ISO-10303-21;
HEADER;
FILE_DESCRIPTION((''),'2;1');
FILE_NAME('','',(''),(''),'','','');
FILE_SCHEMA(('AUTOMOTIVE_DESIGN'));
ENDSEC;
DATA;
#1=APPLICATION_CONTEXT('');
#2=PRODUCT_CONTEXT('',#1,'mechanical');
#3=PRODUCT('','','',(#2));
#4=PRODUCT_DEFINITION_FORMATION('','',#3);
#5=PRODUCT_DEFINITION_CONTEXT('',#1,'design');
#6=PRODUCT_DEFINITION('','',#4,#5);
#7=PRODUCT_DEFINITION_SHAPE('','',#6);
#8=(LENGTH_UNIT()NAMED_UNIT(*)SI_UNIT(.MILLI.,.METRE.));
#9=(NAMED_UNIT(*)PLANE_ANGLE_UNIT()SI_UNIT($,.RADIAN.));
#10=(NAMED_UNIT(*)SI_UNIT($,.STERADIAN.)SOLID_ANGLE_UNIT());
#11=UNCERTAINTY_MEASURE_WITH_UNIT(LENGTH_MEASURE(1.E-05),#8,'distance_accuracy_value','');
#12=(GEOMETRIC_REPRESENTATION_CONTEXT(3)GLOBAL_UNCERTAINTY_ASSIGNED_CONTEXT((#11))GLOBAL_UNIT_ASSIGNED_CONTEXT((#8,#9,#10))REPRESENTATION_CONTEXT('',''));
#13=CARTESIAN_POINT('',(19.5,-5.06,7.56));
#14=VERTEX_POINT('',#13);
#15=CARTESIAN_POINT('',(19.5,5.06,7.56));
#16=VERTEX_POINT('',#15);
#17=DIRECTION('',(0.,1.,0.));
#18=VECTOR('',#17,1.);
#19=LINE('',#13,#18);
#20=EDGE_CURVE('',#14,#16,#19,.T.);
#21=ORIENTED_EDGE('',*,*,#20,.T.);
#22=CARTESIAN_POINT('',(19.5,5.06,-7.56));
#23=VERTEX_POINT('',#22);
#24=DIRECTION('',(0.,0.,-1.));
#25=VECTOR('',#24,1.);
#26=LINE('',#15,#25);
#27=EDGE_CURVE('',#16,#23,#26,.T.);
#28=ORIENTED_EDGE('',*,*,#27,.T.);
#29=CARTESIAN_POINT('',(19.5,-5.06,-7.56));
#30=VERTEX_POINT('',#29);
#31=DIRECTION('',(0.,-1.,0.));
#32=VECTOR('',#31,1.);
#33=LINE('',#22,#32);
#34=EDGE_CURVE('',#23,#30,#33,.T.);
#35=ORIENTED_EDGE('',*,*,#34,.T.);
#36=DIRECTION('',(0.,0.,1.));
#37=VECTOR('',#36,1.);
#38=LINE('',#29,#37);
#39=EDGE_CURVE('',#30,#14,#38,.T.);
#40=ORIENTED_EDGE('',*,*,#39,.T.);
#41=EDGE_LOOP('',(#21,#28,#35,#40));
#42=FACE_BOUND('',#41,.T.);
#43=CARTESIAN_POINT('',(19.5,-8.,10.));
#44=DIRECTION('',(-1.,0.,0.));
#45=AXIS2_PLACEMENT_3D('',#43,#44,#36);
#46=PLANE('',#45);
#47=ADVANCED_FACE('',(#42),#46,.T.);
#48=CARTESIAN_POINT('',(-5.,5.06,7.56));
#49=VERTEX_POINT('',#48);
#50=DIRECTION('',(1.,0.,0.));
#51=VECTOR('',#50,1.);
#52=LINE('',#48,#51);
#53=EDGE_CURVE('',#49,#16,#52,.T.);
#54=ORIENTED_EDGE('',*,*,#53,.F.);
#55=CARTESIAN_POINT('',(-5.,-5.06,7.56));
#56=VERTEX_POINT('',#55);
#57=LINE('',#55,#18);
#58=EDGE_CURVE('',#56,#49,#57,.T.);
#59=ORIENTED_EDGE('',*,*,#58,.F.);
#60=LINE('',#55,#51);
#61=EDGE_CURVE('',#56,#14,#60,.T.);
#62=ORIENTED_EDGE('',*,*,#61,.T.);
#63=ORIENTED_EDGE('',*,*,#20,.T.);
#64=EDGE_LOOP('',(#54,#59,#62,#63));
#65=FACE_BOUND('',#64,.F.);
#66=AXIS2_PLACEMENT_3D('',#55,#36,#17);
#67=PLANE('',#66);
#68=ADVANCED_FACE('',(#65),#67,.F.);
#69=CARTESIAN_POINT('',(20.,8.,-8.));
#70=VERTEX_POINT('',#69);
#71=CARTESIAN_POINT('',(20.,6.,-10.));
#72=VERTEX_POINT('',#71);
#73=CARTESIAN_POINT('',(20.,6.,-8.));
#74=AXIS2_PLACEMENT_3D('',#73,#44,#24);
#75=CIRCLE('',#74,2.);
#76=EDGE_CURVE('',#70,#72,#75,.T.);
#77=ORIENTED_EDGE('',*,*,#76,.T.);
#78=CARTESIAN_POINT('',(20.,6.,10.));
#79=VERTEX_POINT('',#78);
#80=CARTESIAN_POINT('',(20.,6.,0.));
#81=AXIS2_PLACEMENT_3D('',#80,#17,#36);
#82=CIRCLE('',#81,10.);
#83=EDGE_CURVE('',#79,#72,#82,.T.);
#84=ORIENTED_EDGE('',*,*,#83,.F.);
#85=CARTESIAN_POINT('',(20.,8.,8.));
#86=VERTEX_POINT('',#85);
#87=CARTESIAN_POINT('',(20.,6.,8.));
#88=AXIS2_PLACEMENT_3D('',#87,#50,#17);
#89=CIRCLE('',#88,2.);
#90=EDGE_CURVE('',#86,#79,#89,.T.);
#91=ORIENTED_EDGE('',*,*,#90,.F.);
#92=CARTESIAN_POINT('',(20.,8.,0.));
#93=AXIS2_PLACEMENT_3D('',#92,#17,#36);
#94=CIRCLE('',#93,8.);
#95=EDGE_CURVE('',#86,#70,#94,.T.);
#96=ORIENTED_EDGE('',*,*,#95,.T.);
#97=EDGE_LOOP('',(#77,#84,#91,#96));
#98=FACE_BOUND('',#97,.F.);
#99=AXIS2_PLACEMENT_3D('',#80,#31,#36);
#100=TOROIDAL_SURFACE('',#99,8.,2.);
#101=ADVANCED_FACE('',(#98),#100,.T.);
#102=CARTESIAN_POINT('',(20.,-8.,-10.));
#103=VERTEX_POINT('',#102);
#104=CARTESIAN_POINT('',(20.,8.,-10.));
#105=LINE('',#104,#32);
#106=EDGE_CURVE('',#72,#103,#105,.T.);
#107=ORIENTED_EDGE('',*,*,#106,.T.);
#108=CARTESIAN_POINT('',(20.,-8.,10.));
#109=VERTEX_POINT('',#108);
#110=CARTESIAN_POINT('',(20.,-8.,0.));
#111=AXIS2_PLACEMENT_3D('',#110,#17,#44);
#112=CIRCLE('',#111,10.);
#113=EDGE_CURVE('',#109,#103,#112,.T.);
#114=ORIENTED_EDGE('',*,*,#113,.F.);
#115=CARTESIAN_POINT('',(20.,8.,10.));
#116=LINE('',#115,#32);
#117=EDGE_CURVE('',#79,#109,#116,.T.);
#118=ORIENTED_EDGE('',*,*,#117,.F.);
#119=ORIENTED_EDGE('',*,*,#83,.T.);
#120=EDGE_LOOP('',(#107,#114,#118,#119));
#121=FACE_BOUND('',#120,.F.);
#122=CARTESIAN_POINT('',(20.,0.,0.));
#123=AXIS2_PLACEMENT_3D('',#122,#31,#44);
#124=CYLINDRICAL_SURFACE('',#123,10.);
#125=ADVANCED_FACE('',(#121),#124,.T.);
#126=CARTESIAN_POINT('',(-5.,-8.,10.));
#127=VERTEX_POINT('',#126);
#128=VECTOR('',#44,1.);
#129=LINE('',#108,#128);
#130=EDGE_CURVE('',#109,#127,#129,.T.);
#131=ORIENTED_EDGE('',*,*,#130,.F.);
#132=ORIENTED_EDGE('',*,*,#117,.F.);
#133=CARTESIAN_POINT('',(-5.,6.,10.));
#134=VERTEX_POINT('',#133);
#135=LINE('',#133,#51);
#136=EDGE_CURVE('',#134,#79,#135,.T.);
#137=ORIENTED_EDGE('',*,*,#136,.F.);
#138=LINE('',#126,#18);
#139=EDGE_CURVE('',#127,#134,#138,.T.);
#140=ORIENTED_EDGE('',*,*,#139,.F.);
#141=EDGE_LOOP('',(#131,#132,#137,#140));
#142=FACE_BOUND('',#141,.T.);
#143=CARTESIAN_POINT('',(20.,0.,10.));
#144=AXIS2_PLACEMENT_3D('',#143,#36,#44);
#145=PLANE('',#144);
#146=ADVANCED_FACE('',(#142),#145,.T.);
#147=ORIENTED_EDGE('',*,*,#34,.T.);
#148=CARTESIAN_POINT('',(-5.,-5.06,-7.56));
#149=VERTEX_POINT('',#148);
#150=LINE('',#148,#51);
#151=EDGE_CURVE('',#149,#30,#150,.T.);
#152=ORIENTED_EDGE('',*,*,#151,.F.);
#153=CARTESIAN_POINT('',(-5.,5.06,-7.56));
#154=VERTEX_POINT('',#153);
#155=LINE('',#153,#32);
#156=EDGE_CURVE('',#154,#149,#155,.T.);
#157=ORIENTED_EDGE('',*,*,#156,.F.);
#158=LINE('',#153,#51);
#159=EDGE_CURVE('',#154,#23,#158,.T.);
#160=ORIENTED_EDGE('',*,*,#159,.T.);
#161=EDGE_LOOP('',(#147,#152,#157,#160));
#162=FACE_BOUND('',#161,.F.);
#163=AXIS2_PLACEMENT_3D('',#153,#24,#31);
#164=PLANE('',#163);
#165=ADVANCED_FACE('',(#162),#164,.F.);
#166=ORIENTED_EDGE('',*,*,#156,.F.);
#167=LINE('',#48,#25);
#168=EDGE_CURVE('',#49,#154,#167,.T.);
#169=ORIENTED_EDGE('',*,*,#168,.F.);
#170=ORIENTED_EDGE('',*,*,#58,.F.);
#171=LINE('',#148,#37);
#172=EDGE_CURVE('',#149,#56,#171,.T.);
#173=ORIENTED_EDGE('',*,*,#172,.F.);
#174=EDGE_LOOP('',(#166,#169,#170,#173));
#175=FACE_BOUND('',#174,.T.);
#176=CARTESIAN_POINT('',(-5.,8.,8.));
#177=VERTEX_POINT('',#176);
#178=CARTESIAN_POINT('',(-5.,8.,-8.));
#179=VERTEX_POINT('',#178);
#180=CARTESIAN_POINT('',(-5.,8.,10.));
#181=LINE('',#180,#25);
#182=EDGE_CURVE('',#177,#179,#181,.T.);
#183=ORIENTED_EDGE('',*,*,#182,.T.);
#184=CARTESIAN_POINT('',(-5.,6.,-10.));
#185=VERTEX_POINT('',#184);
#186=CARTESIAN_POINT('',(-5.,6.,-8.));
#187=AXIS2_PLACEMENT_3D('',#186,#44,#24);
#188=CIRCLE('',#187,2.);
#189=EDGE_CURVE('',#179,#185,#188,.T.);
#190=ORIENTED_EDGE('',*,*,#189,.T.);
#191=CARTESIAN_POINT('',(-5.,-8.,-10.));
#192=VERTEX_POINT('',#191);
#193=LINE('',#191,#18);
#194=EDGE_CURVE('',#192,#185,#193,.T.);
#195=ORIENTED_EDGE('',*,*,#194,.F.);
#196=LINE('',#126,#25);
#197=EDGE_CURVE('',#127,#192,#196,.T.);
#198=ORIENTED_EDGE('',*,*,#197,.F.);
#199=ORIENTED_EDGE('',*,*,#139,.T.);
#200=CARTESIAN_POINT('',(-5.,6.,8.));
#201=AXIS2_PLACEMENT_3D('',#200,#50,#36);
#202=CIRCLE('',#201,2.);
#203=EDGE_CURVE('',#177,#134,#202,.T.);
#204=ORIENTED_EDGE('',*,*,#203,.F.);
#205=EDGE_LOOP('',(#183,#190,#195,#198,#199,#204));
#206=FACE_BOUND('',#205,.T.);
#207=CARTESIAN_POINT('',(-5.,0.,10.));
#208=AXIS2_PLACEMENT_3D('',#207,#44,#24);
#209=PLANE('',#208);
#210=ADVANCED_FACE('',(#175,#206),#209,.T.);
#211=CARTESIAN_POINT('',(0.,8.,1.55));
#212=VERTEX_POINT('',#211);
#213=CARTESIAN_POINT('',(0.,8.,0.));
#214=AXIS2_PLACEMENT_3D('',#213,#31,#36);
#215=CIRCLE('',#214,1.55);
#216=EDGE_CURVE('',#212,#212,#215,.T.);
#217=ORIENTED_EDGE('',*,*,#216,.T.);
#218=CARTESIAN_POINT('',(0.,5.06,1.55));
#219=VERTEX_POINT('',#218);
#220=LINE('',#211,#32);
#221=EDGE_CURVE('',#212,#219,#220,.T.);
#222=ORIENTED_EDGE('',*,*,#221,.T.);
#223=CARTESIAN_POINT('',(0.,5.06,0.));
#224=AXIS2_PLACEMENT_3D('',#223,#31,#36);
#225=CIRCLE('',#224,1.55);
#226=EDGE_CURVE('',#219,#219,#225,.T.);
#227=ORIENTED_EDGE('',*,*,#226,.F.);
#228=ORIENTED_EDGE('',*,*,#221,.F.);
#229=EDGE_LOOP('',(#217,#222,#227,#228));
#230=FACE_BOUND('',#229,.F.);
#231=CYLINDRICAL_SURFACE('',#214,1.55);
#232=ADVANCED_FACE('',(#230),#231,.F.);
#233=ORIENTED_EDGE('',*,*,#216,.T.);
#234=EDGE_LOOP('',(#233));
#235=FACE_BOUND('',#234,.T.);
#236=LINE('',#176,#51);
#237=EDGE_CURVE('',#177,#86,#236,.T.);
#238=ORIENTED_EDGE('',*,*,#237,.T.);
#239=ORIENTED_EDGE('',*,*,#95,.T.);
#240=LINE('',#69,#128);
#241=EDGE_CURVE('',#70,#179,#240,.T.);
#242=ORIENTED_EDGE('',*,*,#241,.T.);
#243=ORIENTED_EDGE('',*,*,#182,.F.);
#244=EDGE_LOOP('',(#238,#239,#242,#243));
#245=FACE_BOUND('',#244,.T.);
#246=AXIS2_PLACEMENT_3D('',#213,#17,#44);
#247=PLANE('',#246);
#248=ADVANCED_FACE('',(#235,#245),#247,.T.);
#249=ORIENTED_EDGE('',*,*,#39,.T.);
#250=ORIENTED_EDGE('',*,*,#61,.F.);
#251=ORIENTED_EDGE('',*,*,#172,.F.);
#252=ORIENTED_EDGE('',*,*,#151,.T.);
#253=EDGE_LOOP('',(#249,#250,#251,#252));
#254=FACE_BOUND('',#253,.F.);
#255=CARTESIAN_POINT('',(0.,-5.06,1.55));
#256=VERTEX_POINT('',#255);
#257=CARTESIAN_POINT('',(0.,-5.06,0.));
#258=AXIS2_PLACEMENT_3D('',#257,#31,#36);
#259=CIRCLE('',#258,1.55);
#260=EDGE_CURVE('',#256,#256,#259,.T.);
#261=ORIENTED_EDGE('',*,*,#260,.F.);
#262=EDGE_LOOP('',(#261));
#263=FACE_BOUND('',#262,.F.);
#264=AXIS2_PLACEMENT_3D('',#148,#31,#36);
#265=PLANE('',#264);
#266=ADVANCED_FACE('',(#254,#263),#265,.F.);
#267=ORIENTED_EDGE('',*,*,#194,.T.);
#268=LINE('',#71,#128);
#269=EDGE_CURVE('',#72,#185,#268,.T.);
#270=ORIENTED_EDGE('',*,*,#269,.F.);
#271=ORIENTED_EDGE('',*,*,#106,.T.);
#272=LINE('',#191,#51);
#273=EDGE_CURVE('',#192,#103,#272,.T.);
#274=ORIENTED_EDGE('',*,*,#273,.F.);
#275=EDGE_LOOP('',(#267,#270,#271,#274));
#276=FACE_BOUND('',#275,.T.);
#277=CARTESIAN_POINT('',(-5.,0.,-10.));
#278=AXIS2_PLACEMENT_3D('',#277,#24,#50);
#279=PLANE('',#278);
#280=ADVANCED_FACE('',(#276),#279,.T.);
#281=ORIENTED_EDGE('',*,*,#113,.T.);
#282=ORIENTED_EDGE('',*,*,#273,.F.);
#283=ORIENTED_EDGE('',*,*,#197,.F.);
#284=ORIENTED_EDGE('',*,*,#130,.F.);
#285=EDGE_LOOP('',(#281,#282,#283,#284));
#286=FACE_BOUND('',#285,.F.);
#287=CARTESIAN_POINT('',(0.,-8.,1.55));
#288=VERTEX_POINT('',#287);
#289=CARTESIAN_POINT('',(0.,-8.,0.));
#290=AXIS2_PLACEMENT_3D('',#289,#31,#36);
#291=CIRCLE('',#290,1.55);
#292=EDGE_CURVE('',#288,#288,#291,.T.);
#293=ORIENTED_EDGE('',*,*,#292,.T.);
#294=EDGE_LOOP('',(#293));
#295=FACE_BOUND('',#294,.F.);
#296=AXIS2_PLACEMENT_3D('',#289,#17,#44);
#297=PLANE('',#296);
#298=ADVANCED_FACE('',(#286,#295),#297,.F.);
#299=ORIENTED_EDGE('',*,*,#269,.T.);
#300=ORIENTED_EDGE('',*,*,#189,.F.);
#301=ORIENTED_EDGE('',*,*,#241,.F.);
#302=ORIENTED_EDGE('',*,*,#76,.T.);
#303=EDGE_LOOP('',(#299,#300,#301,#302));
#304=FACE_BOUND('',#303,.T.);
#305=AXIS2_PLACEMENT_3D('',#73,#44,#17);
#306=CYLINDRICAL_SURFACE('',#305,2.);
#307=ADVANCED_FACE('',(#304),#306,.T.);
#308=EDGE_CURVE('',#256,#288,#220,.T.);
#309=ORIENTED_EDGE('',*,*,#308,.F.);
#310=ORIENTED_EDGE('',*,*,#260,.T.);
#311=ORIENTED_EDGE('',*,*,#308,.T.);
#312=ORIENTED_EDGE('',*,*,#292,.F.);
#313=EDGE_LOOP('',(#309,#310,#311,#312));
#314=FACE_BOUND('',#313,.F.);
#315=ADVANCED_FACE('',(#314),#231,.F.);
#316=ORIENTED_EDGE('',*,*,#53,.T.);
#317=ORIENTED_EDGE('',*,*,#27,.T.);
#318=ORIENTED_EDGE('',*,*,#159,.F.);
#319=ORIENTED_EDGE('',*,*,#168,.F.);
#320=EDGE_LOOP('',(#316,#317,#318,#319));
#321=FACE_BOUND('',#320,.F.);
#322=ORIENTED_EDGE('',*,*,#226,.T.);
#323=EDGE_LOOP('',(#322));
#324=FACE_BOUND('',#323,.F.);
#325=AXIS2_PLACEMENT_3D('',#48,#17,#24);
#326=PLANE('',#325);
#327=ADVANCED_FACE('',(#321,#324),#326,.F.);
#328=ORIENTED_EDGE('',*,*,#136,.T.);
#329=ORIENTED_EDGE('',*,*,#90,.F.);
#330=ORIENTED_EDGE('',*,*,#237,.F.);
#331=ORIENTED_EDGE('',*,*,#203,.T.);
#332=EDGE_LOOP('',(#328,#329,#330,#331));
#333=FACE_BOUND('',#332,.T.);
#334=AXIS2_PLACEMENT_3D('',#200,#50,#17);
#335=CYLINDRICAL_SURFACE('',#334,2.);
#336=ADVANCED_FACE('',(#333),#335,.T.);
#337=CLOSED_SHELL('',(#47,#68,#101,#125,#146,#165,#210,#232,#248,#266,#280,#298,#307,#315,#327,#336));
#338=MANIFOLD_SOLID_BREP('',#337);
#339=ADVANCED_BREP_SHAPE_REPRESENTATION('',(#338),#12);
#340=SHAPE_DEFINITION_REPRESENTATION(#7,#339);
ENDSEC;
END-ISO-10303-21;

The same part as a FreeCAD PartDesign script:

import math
import FreeCAD as App
import Part
import Sketcher
from FreeCAD import Vector


def edges_at(feature, points):
    """Names of the edges that pass closest to the given points."""
    edges = feature.Shape.Edges
    near = lambda p: min(range(len(edges)), key=lambda i: edges[i].distToShape(Part.Vertex(*p))[0])
    return sorted({f"Edge{near(p) + 1}" for p in points})

doc = App.newDocument("Part")
body = doc.addObject("PartDesign::Body", "Body")

# Sketch on XZ plane
sketch1 = body.newObject("Sketcher::SketchObject", "Sketch")
sketch1.AttachmentSupport = (doc.getObject("XZ_Plane"), [""])
sketch1.MapMode = "FlatFace"
sketch1.addGeometry([
    Part.LineSegment(Vector(20, -10, 0), Vector(-5, -10, 0)),
    Part.LineSegment(Vector(-5, -10, 0), Vector(-5, 10, 0)),
    Part.LineSegment(Vector(-5, 10, 0), Vector(20, 10, 0)),
    Part.ArcOfCircle(Part.Circle(Vector(20, 0, 0), Vector(0, 0, 1), 10), math.radians(-90), math.radians(90)),
], False)
sketch1.addConstraint([
    Sketcher.Constraint("Coincident", 0, 2, 1, 1),
    Sketcher.Constraint("Coincident", 1, 2, 2, 1),
    Sketcher.Constraint("Tangent", 2, 2, 3, 2),
    Sketcher.Constraint("Tangent", 3, 1, 0, 1),
    Sketcher.Constraint("Horizontal", 0),
    Sketcher.Constraint("Vertical", 1),
    Sketcher.Constraint("Horizontal", 2),
    Sketcher.Constraint("PointOnObject", 3, 3, -1),
    Sketcher.Constraint("Radius", 3, 10.0),
    Sketcher.Constraint("DistanceX", -1, 1, 3, 3, 20.0),
    Sketcher.Constraint("DistanceX", 0, 2, -1, 1, 5.0),
])
pad1 = body.newObject("PartDesign::Pad", "Pad")
pad1.Profile = sketch1
pad1.Length = 16
pad1.Midplane = True

# Sketch on XZ plane
sketch2 = body.newObject("Sketcher::SketchObject", "Sketch001")
sketch2.AttachmentSupport = (doc.getObject("XZ_Plane"), [""])
sketch2.MapMode = "FlatFace"
sketch2.AttachmentOffset = App.Placement(Vector(0, 0, -8), App.Rotation())
sketch2.addGeometry(Part.Circle(Vector(0, 0, 0), Vector(0, 0, 1), 1.6), False)
sketch2.addConstraint([
    Sketcher.Constraint("Coincident", 0, 3, -1, 1),
    Sketcher.Constraint("Diameter", 0, 3.1),
])
doc.recompute()
hole = body.newObject("PartDesign::Hole", "Hole")
hole.Profile = sketch2
hole.ThreadType = "None"
hole.Diameter = 3.1
hole.DepthType = "ThroughAll"
hole.Reversed = True

# Sketch on YZ plane
sketch3 = body.newObject("Sketcher::SketchObject", "Sketch002")
sketch3.AttachmentSupport = (doc.getObject("YZ_Plane"), [""])
sketch3.MapMode = "FlatFace"
sketch3.AttachmentOffset = App.Placement(Vector(0, 0, -5), App.Rotation())
sketch3.addGeometry([
    Part.LineSegment(Vector(5, -8, 0), Vector(-5, -8, 0)),
    Part.LineSegment(Vector(-5, -8, 0), Vector(-5, 8, 0)),
    Part.LineSegment(Vector(-5, 8, 0), Vector(5, 8, 0)),
    Part.LineSegment(Vector(5, 8, 0), Vector(5, -8, 0)),
], False)
sketch3.addConstraint([
    Sketcher.Constraint("Coincident", 0, 2, 1, 1),
    Sketcher.Constraint("Coincident", 1, 2, 2, 1),
    Sketcher.Constraint("Coincident", 2, 2, 3, 1),
    Sketcher.Constraint("Coincident", 3, 2, 0, 1),
    Sketcher.Constraint("Horizontal", 0),
    Sketcher.Constraint("Vertical", 1),
    Sketcher.Constraint("Horizontal", 2),
    Sketcher.Constraint("Vertical", 3),
    Sketcher.Constraint("Symmetric", 0, 2, 2, 2, -1, 1),
    Sketcher.Constraint("DistanceX", 0, 2, 0, 1, 10.12),
    Sketcher.Constraint("DistanceY", 1, 1, 1, 2, 15.12),
])
pocket1 = body.newObject("PartDesign::Pocket", "Pocket")
pocket1.Profile = sketch3
pocket1.Length = 24.5
pocket1.Reversed = True
doc.recompute()

fillet = body.newObject("PartDesign::Fillet", "Fillet")
fillet.Base = (pocket1, edges_at(pocket1, [(30, 8, 0), (7.5, 8, -10), (7.5, 8, 10)]))
fillet.Radius = 2

doc.recompute()
